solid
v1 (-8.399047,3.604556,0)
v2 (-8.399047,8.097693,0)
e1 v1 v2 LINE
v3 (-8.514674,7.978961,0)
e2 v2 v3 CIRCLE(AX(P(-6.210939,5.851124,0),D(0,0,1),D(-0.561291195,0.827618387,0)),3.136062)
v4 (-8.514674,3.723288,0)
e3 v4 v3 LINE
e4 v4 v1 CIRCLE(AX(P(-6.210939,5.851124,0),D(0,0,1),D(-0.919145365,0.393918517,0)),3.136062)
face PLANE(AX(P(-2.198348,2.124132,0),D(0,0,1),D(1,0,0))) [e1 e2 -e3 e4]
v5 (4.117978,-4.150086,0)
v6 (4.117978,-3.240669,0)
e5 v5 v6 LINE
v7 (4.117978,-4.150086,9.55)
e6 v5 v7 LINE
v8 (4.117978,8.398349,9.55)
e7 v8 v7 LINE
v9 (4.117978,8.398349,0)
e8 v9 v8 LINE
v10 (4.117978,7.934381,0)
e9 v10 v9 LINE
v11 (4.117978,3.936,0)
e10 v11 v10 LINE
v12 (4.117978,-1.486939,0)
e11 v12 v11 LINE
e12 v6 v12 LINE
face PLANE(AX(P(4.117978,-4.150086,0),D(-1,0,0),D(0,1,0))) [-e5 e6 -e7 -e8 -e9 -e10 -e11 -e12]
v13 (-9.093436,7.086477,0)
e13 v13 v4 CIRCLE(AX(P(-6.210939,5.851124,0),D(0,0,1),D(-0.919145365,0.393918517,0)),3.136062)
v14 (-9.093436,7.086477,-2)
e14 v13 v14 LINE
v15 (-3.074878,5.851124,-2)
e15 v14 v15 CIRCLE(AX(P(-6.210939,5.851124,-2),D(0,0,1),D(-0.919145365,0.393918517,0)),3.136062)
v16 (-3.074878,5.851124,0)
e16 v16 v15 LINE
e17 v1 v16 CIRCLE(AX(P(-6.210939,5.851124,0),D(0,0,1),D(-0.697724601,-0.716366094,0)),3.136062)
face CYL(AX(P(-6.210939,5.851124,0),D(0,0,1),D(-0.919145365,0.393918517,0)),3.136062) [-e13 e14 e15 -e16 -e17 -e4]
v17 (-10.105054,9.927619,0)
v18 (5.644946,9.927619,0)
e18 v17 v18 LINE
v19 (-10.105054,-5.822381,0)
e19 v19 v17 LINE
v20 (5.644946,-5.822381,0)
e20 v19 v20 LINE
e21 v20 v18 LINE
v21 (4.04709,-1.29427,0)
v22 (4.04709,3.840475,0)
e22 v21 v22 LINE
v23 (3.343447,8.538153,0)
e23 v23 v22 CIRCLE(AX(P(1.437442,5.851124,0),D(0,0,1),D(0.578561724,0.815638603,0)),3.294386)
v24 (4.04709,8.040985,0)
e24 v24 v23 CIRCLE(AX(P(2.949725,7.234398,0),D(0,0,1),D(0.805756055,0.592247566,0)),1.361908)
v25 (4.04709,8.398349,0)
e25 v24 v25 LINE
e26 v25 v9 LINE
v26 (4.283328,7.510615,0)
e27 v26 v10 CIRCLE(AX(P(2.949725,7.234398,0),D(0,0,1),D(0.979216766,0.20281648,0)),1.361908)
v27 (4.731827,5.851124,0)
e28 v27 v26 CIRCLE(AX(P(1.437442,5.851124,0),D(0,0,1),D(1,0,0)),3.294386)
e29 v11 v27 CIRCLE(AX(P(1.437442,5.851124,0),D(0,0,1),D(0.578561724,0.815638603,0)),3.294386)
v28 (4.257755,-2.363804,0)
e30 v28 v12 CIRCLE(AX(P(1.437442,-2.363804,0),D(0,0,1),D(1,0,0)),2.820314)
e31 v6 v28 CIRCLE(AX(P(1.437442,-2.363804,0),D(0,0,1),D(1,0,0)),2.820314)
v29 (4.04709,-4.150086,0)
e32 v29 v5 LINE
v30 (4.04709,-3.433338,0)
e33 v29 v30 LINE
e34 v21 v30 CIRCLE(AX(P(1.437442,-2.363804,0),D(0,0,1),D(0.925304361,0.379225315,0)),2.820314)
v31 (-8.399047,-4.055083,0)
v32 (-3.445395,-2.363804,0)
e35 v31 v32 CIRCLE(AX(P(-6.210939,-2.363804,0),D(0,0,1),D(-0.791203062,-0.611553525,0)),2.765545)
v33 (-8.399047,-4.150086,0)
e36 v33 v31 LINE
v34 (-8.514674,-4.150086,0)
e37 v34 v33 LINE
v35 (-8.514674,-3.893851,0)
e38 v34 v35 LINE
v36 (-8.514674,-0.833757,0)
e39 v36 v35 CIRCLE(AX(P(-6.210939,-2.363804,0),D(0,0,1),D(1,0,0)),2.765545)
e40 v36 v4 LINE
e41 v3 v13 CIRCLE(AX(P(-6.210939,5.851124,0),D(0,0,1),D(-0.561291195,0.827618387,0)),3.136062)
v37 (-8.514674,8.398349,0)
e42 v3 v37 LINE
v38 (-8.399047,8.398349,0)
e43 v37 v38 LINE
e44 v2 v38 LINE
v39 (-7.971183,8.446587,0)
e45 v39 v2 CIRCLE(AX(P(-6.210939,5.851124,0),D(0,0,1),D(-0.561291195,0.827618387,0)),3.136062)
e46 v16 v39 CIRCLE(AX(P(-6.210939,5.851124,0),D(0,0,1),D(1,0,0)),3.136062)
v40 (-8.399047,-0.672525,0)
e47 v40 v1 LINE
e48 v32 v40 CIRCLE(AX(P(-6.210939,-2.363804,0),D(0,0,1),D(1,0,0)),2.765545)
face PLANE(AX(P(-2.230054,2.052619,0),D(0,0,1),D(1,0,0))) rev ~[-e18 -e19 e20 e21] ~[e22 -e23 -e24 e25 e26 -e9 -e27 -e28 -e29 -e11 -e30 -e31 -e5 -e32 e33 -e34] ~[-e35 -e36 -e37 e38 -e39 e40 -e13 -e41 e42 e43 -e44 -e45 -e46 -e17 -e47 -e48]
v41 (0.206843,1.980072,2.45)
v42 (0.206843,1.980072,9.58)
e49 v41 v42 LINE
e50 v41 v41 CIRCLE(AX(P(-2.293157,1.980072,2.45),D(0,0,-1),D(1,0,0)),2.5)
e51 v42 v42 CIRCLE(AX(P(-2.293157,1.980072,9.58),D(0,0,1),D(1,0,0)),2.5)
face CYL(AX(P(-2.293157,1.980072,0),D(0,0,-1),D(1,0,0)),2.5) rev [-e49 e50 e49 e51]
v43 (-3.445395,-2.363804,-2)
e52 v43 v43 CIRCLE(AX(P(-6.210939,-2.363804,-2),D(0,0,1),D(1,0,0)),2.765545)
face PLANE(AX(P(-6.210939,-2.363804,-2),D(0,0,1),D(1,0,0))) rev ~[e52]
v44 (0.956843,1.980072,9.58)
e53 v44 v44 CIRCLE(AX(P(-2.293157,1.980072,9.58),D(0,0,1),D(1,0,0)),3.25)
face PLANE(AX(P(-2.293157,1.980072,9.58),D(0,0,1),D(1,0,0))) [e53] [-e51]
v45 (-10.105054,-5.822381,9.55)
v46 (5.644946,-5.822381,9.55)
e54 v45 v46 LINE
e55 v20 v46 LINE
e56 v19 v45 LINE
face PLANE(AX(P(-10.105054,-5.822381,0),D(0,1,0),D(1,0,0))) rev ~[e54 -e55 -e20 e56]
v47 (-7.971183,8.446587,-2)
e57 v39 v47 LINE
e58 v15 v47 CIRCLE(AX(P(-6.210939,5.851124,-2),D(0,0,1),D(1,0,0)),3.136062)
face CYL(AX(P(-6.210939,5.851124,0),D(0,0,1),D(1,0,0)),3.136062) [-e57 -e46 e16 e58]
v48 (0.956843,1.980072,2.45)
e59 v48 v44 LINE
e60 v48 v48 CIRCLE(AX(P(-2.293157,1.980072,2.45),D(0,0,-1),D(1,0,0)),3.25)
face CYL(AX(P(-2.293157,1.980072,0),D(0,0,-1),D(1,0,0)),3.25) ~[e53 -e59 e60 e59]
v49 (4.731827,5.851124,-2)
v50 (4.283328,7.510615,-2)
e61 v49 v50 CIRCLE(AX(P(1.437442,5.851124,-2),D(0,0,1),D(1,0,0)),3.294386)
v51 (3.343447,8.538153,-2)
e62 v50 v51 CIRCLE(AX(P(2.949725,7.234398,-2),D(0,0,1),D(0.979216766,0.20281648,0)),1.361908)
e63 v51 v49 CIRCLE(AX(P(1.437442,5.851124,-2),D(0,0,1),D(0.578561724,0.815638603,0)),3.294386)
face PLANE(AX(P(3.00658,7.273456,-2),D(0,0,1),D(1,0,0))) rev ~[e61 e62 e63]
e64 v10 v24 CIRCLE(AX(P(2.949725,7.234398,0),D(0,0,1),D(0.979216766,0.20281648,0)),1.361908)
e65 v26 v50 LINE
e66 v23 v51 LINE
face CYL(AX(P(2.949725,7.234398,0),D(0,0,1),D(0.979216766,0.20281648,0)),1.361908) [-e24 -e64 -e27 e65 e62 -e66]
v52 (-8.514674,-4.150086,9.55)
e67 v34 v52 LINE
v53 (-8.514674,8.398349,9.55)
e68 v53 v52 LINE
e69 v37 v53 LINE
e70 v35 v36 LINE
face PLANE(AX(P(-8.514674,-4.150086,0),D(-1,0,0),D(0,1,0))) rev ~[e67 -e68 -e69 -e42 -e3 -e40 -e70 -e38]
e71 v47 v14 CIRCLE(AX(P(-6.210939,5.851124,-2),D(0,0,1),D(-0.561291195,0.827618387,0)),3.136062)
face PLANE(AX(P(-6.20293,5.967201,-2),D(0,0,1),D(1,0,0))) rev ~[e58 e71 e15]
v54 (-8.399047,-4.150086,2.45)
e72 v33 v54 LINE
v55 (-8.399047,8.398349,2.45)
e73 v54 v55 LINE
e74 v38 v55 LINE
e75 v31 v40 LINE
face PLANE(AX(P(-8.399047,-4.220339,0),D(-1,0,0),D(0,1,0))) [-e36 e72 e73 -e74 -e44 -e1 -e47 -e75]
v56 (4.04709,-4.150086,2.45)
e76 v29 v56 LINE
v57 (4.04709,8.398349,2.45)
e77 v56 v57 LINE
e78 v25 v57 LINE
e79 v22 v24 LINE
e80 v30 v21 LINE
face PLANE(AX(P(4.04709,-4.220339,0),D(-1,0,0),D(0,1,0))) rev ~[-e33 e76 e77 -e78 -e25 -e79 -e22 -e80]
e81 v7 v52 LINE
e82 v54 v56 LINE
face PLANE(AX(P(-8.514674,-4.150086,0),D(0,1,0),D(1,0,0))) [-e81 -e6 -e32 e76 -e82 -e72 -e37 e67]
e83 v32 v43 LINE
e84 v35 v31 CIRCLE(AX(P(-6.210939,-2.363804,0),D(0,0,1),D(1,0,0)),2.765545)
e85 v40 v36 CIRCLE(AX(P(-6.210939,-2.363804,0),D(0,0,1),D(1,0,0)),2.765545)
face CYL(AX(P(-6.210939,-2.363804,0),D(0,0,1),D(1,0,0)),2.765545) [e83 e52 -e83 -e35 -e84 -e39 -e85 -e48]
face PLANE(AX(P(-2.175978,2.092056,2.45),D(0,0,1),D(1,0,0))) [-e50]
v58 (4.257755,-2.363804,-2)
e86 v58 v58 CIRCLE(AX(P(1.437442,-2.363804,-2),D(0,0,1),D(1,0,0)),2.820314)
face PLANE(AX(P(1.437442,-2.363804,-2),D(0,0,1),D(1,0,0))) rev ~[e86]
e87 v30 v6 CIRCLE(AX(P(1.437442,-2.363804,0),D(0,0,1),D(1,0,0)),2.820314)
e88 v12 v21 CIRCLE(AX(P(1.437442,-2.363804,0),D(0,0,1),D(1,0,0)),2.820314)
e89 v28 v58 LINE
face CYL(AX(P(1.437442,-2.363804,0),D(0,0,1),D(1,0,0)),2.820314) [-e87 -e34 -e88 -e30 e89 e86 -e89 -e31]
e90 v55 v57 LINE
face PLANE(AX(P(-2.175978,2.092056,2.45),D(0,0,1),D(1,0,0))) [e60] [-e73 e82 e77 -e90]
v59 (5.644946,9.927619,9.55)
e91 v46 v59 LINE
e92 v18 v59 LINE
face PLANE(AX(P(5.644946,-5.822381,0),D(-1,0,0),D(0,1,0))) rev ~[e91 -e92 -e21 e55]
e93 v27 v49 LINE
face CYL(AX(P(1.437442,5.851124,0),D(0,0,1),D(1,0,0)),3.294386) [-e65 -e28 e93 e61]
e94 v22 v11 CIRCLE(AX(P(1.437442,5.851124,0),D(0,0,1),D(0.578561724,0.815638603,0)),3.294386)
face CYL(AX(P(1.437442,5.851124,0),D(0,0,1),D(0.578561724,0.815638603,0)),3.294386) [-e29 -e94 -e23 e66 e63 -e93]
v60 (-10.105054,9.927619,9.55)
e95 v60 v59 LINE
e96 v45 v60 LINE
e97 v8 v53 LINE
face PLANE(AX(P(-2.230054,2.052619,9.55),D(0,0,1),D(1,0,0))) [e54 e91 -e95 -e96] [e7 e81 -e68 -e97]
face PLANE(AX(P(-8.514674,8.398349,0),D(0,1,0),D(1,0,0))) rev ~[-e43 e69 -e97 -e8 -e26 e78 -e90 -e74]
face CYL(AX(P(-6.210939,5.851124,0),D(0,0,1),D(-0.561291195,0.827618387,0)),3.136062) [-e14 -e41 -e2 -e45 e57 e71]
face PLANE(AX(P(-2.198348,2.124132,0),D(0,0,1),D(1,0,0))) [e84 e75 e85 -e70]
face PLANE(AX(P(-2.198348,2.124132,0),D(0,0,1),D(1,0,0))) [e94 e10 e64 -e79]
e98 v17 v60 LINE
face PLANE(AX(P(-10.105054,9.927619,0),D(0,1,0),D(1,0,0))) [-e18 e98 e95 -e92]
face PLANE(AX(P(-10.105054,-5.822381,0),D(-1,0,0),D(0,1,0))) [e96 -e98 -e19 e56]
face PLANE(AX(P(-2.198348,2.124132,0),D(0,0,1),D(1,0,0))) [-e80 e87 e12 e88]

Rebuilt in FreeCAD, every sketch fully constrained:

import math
import FreeCAD as App
import Part
import Sketcher
Q = App.Units.Quantity


def add_polygon(sketch, points):
    """Adds a closed chain of lines whose ends are joined by coincident constraints."""
    first, n = sketch.GeometryCount, len(points)
    for a, b in zip(points, points[1:] + points[:1]):
        sketch.addGeometry(Part.LineSegment(App.Vector(*a, 0), App.Vector(*b, 0)), False)
    for i in range(n):
        sketch.addConstraint(Sketcher.Constraint("Coincident", first + i, 2, first + (i + 1) % n, 1))

doc = App.newDocument("Part")
body = doc.addObject("PartDesign::Body", "Body")

# Sketch on XY plane
sketch1 = body.newObject("Sketcher::SketchObject", "Sketch")
sketch1.AttachmentSupport = (doc.getObject("XY_Plane"), [""])
sketch1.MapMode = "FlatFace"
add_polygon(sketch1, [(-10.105054, 9.927619), (-10.105054, -5.822381), (5.644946, -5.822381), (5.644946, 9.927619)])  # lines 0-3
sketch1.addConstraint([
    Sketcher.Constraint("Vertical", 0),
    Sketcher.Constraint("Horizontal", 1),
    Sketcher.Constraint("Vertical", 2),
    Sketcher.Constraint("Horizontal", 3),
    Sketcher.Constraint("Equal", 3, 0),
    Sketcher.Constraint("DistanceX", 1, 1, 1, 2, Q("15.75 mm")),
    Sketcher.Constraint("DistanceY", 0, 2, -1, 1, Q("5.822381 mm")),
    Sketcher.Constraint("DistanceX", 0, 2, -1, 1, Q("10.105054 mm")),
])
pad1 = body.newObject("PartDesign::Pad", "Pad")
pad1.Profile = sketch1
pad1.Length = 9.55

# Sketch on XY plane
sketch2 = body.newObject("Sketcher::SketchObject", "Sketch001")
sketch2.AttachmentSupport = (doc.getObject("XY_Plane"), [""])
sketch2.MapMode = "FlatFace"
sketch2.addGeometry([
    Part.ArcOfCircle(Part.Circle(App.Vector(1.437442, 5.851124, 0), App.Vector(0, 0, 1), 3.294386), math.radians(54.650555), math.radians(360)),  # 0
    Part.ArcOfCircle(Part.Circle(App.Vector(1.437442, 5.851124, 0), App.Vector(0, 0, 1), 3.294386), math.radians(0), math.radians(30.247286)),  # 1
    Part.ArcOfCircle(Part.Circle(App.Vector(2.949725, 7.234398, 0), App.Vector(0, 0, 1), 1.361908), math.radians(11.701708), math.radians(73.196133)),  # 2
    Part.ArcOfCircle(Part.Circle(App.Vector(-6.210939, 5.851124, 0), App.Vector(0, 0, 1), 3.136062), math.radians(156.801458), math.radians(360)),  # 3
    Part.ArcOfCircle(Part.Circle(App.Vector(-6.210939, 5.851124, 0), App.Vector(0, 0, 1), 3.136062), math.radians(0), math.radians(124.14514)),  # 4
    Part.ArcOfCircle(Part.Circle(App.Vector(-6.210939, 5.851124, 0), App.Vector(0, 0, 1), 3.136062), math.radians(124.14514), math.radians(156.801458)),  # 5
    Part.Circle(App.Vector(-6.210939, -2.363804, 0), App.Vector(0, 0, 1), 2.765545),  # 6
    Part.Circle(App.Vector(1.437442, -2.363804, 0), App.Vector(0, 0, 1), 2.820314),  # 7
], False)
sketch2.addConstraint([
    Sketcher.Constraint("Tangent", 0, 2, 1, 1),
    Sketcher.Constraint("Coincident", 1, 2, 2, 1),
    Sketcher.Constraint("Coincident", 2, 2, 0, 1),
    Sketcher.Constraint("Tangent", 3, 2, 4, 1),
    Sketcher.Constraint("Tangent", 4, 2, 5, 1),
    Sketcher.Constraint("Tangent", 5, 2, 3, 1),
    Sketcher.Constraint("Equal", 0, 1),
    Sketcher.Constraint("Horizontal", 1, 3, 3, 3),
    Sketcher.Constraint("Horizontal", 6, 3, 7, 3),
    Sketcher.Constraint("Horizontal", 5, 3, 0, 2),
    Sketcher.Constraint("Horizontal", 0, 2, 3, 2),
    Sketcher.Constraint("Vertical", 5, 3, 6, 3),
    Sketcher.Constraint("Vertical", 1, 3, 7, 3),
    Sketcher.Constraint("Diameter", 6, Q("5.531089 mm")),
    Sketcher.Constraint("Radius", 2, Q("1.361908 mm")),
    Sketcher.Constraint("Radius", 3, Q("3.136062 mm")),
    Sketcher.Constraint("Diameter", 7, Q("5.640627 mm")),
    Sketcher.Constraint("Radius", 0, Q("3.294386 mm")),
    Sketcher.Constraint("DistanceY", -1, 1, 2, 3, Q("7.234398 mm")),
    Sketcher.Constraint("DistanceX", 1, 2, 0, 2, Q("0.4485 mm")),
    Sketcher.Constraint("DistanceX", -1, 1, 0, 3, Q("1.437442 mm")),
    Sketcher.Constraint("DistanceX", 3, 3, -1, 1, Q("6.210939 mm")),
    Sketcher.Constraint("DistanceY", 6, 3, 3, 3, Q("8.214928 mm")),
    Sketcher.Constraint("DistanceX", 2, 2, 1, 2, Q("0.93988 mm")),
    Sketcher.Constraint("DistanceY", 5, 2, 4, 2, Q("1.36011 mm")),
    Sketcher.Constraint("DistanceX", 5, 2, 3, 2, Q("6.018558 mm")),
])
pad2 = body.newObject("PartDesign::Pad", "Pad001")
pad2.Profile = sketch2
pad2.Length = 2
pad2.Reversed = True

# Sketch on XY plane
sketch3 = body.newObject("Sketcher::SketchObject", "Sketch002")
sketch3.AttachmentSupport = (doc.getObject("XY_Plane"), [""])
sketch3.MapMode = "FlatFace"
add_polygon(sketch3, [(-8.514674, 8.398349), (-8.514674, -4.150086), (4.117978, -4.150086), (4.117978, 8.398349)])  # lines 0-3
sketch3.addConstraint([
    Sketcher.Constraint("Vertical", 0),
    Sketcher.Constraint("Horizontal", 1),
    Sketcher.Constraint("Vertical", 2),
    Sketcher.Constraint("Horizontal", 3),
    Sketcher.Constraint("DistanceX", 1, 1, 1, 2, Q("12.632653 mm")),
    Sketcher.Constraint("DistanceY", 0, 2, 0, 1, Q("12.548435 mm")),
    Sketcher.Constraint("DistanceX", -1, 1, 1, 2, Q("4.117978 mm")),
    Sketcher.Constraint("DistanceY", -1, 1, 2, 2, Q("8.398349 mm")),
])
pocket1 = body.newObject("PartDesign::Pocket", "Pocket")
pocket1.Profile = sketch3
pocket1.Length = 10
pocket1.Reversed = True

# Sketch on XY plane
sketch4 = body.newObject("Sketcher::SketchObject", "Sketch003")
sketch4.AttachmentSupport = (doc.getObject("XY_Plane"), [""])
sketch4.MapMode = "FlatFace"
add_polygon(sketch4, [(-8.399047, 8.40445), (-8.399047, -4.220339), (4.04709, -4.220339), (4.04709, 8.40445)])  # lines 0-3
sketch4.addConstraint([
    Sketcher.Constraint("Vertical", 0),
    Sketcher.Constraint("Horizontal", 1),
    Sketcher.Constraint("Vertical", 2),
    Sketcher.Constraint("Horizontal", 3),
    Sketcher.Constraint("DistanceY", 0, 2, 0, 1, Q("12.624789 mm")),
    Sketcher.Constraint("DistanceX", 1, 1, 1, 2, Q("12.446137 mm")),
    Sketcher.Constraint("DistanceY", 0, 2, -1, 1, Q("4.220339 mm")),
    Sketcher.Constraint("DistanceX", -1, 1, 1, 2, Q("4.04709 mm")),
])
pad3 = body.newObject("PartDesign::Pad", "Pad002")
pad3.Profile = sketch4
pad3.Length = 2.45

# Sketch on XY plane
sketch5 = body.newObject("Sketcher::SketchObject", "Sketch004")
sketch5.AttachmentSupport = (doc.getObject("XY_Plane"), [""])
sketch5.MapMode = "FlatFace"
sketch5.addGeometry([
    Part.Circle(App.Vector(-2.293157, 1.980072, 0), App.Vector(0, 0, 1), 3.25),
    Part.Circle(App.Vector(-2.293157, 1.980072, 0), App.Vector(0, 0, 1), 2.5),
], False)
sketch5.addConstraint([
    Sketcher.Constraint("Coincident", 1, 3, 0, 3),
    Sketcher.Constraint("Diameter", 1, Q("5 mm")),
    Sketcher.Constraint("Diameter", 0, Q("6.5 mm")),
    Sketcher.Constraint("DistanceY", -1, 1, 0, 3, Q("1.980072 mm")),
    Sketcher.Constraint("DistanceX", 0, 3, -1, 1, Q("2.293157 mm")),
])
pad4 = body.newObject("PartDesign::Pad", "Pad003")
pad4.Profile = sketch5
pad4.Length = 9.58

doc.recompute()
